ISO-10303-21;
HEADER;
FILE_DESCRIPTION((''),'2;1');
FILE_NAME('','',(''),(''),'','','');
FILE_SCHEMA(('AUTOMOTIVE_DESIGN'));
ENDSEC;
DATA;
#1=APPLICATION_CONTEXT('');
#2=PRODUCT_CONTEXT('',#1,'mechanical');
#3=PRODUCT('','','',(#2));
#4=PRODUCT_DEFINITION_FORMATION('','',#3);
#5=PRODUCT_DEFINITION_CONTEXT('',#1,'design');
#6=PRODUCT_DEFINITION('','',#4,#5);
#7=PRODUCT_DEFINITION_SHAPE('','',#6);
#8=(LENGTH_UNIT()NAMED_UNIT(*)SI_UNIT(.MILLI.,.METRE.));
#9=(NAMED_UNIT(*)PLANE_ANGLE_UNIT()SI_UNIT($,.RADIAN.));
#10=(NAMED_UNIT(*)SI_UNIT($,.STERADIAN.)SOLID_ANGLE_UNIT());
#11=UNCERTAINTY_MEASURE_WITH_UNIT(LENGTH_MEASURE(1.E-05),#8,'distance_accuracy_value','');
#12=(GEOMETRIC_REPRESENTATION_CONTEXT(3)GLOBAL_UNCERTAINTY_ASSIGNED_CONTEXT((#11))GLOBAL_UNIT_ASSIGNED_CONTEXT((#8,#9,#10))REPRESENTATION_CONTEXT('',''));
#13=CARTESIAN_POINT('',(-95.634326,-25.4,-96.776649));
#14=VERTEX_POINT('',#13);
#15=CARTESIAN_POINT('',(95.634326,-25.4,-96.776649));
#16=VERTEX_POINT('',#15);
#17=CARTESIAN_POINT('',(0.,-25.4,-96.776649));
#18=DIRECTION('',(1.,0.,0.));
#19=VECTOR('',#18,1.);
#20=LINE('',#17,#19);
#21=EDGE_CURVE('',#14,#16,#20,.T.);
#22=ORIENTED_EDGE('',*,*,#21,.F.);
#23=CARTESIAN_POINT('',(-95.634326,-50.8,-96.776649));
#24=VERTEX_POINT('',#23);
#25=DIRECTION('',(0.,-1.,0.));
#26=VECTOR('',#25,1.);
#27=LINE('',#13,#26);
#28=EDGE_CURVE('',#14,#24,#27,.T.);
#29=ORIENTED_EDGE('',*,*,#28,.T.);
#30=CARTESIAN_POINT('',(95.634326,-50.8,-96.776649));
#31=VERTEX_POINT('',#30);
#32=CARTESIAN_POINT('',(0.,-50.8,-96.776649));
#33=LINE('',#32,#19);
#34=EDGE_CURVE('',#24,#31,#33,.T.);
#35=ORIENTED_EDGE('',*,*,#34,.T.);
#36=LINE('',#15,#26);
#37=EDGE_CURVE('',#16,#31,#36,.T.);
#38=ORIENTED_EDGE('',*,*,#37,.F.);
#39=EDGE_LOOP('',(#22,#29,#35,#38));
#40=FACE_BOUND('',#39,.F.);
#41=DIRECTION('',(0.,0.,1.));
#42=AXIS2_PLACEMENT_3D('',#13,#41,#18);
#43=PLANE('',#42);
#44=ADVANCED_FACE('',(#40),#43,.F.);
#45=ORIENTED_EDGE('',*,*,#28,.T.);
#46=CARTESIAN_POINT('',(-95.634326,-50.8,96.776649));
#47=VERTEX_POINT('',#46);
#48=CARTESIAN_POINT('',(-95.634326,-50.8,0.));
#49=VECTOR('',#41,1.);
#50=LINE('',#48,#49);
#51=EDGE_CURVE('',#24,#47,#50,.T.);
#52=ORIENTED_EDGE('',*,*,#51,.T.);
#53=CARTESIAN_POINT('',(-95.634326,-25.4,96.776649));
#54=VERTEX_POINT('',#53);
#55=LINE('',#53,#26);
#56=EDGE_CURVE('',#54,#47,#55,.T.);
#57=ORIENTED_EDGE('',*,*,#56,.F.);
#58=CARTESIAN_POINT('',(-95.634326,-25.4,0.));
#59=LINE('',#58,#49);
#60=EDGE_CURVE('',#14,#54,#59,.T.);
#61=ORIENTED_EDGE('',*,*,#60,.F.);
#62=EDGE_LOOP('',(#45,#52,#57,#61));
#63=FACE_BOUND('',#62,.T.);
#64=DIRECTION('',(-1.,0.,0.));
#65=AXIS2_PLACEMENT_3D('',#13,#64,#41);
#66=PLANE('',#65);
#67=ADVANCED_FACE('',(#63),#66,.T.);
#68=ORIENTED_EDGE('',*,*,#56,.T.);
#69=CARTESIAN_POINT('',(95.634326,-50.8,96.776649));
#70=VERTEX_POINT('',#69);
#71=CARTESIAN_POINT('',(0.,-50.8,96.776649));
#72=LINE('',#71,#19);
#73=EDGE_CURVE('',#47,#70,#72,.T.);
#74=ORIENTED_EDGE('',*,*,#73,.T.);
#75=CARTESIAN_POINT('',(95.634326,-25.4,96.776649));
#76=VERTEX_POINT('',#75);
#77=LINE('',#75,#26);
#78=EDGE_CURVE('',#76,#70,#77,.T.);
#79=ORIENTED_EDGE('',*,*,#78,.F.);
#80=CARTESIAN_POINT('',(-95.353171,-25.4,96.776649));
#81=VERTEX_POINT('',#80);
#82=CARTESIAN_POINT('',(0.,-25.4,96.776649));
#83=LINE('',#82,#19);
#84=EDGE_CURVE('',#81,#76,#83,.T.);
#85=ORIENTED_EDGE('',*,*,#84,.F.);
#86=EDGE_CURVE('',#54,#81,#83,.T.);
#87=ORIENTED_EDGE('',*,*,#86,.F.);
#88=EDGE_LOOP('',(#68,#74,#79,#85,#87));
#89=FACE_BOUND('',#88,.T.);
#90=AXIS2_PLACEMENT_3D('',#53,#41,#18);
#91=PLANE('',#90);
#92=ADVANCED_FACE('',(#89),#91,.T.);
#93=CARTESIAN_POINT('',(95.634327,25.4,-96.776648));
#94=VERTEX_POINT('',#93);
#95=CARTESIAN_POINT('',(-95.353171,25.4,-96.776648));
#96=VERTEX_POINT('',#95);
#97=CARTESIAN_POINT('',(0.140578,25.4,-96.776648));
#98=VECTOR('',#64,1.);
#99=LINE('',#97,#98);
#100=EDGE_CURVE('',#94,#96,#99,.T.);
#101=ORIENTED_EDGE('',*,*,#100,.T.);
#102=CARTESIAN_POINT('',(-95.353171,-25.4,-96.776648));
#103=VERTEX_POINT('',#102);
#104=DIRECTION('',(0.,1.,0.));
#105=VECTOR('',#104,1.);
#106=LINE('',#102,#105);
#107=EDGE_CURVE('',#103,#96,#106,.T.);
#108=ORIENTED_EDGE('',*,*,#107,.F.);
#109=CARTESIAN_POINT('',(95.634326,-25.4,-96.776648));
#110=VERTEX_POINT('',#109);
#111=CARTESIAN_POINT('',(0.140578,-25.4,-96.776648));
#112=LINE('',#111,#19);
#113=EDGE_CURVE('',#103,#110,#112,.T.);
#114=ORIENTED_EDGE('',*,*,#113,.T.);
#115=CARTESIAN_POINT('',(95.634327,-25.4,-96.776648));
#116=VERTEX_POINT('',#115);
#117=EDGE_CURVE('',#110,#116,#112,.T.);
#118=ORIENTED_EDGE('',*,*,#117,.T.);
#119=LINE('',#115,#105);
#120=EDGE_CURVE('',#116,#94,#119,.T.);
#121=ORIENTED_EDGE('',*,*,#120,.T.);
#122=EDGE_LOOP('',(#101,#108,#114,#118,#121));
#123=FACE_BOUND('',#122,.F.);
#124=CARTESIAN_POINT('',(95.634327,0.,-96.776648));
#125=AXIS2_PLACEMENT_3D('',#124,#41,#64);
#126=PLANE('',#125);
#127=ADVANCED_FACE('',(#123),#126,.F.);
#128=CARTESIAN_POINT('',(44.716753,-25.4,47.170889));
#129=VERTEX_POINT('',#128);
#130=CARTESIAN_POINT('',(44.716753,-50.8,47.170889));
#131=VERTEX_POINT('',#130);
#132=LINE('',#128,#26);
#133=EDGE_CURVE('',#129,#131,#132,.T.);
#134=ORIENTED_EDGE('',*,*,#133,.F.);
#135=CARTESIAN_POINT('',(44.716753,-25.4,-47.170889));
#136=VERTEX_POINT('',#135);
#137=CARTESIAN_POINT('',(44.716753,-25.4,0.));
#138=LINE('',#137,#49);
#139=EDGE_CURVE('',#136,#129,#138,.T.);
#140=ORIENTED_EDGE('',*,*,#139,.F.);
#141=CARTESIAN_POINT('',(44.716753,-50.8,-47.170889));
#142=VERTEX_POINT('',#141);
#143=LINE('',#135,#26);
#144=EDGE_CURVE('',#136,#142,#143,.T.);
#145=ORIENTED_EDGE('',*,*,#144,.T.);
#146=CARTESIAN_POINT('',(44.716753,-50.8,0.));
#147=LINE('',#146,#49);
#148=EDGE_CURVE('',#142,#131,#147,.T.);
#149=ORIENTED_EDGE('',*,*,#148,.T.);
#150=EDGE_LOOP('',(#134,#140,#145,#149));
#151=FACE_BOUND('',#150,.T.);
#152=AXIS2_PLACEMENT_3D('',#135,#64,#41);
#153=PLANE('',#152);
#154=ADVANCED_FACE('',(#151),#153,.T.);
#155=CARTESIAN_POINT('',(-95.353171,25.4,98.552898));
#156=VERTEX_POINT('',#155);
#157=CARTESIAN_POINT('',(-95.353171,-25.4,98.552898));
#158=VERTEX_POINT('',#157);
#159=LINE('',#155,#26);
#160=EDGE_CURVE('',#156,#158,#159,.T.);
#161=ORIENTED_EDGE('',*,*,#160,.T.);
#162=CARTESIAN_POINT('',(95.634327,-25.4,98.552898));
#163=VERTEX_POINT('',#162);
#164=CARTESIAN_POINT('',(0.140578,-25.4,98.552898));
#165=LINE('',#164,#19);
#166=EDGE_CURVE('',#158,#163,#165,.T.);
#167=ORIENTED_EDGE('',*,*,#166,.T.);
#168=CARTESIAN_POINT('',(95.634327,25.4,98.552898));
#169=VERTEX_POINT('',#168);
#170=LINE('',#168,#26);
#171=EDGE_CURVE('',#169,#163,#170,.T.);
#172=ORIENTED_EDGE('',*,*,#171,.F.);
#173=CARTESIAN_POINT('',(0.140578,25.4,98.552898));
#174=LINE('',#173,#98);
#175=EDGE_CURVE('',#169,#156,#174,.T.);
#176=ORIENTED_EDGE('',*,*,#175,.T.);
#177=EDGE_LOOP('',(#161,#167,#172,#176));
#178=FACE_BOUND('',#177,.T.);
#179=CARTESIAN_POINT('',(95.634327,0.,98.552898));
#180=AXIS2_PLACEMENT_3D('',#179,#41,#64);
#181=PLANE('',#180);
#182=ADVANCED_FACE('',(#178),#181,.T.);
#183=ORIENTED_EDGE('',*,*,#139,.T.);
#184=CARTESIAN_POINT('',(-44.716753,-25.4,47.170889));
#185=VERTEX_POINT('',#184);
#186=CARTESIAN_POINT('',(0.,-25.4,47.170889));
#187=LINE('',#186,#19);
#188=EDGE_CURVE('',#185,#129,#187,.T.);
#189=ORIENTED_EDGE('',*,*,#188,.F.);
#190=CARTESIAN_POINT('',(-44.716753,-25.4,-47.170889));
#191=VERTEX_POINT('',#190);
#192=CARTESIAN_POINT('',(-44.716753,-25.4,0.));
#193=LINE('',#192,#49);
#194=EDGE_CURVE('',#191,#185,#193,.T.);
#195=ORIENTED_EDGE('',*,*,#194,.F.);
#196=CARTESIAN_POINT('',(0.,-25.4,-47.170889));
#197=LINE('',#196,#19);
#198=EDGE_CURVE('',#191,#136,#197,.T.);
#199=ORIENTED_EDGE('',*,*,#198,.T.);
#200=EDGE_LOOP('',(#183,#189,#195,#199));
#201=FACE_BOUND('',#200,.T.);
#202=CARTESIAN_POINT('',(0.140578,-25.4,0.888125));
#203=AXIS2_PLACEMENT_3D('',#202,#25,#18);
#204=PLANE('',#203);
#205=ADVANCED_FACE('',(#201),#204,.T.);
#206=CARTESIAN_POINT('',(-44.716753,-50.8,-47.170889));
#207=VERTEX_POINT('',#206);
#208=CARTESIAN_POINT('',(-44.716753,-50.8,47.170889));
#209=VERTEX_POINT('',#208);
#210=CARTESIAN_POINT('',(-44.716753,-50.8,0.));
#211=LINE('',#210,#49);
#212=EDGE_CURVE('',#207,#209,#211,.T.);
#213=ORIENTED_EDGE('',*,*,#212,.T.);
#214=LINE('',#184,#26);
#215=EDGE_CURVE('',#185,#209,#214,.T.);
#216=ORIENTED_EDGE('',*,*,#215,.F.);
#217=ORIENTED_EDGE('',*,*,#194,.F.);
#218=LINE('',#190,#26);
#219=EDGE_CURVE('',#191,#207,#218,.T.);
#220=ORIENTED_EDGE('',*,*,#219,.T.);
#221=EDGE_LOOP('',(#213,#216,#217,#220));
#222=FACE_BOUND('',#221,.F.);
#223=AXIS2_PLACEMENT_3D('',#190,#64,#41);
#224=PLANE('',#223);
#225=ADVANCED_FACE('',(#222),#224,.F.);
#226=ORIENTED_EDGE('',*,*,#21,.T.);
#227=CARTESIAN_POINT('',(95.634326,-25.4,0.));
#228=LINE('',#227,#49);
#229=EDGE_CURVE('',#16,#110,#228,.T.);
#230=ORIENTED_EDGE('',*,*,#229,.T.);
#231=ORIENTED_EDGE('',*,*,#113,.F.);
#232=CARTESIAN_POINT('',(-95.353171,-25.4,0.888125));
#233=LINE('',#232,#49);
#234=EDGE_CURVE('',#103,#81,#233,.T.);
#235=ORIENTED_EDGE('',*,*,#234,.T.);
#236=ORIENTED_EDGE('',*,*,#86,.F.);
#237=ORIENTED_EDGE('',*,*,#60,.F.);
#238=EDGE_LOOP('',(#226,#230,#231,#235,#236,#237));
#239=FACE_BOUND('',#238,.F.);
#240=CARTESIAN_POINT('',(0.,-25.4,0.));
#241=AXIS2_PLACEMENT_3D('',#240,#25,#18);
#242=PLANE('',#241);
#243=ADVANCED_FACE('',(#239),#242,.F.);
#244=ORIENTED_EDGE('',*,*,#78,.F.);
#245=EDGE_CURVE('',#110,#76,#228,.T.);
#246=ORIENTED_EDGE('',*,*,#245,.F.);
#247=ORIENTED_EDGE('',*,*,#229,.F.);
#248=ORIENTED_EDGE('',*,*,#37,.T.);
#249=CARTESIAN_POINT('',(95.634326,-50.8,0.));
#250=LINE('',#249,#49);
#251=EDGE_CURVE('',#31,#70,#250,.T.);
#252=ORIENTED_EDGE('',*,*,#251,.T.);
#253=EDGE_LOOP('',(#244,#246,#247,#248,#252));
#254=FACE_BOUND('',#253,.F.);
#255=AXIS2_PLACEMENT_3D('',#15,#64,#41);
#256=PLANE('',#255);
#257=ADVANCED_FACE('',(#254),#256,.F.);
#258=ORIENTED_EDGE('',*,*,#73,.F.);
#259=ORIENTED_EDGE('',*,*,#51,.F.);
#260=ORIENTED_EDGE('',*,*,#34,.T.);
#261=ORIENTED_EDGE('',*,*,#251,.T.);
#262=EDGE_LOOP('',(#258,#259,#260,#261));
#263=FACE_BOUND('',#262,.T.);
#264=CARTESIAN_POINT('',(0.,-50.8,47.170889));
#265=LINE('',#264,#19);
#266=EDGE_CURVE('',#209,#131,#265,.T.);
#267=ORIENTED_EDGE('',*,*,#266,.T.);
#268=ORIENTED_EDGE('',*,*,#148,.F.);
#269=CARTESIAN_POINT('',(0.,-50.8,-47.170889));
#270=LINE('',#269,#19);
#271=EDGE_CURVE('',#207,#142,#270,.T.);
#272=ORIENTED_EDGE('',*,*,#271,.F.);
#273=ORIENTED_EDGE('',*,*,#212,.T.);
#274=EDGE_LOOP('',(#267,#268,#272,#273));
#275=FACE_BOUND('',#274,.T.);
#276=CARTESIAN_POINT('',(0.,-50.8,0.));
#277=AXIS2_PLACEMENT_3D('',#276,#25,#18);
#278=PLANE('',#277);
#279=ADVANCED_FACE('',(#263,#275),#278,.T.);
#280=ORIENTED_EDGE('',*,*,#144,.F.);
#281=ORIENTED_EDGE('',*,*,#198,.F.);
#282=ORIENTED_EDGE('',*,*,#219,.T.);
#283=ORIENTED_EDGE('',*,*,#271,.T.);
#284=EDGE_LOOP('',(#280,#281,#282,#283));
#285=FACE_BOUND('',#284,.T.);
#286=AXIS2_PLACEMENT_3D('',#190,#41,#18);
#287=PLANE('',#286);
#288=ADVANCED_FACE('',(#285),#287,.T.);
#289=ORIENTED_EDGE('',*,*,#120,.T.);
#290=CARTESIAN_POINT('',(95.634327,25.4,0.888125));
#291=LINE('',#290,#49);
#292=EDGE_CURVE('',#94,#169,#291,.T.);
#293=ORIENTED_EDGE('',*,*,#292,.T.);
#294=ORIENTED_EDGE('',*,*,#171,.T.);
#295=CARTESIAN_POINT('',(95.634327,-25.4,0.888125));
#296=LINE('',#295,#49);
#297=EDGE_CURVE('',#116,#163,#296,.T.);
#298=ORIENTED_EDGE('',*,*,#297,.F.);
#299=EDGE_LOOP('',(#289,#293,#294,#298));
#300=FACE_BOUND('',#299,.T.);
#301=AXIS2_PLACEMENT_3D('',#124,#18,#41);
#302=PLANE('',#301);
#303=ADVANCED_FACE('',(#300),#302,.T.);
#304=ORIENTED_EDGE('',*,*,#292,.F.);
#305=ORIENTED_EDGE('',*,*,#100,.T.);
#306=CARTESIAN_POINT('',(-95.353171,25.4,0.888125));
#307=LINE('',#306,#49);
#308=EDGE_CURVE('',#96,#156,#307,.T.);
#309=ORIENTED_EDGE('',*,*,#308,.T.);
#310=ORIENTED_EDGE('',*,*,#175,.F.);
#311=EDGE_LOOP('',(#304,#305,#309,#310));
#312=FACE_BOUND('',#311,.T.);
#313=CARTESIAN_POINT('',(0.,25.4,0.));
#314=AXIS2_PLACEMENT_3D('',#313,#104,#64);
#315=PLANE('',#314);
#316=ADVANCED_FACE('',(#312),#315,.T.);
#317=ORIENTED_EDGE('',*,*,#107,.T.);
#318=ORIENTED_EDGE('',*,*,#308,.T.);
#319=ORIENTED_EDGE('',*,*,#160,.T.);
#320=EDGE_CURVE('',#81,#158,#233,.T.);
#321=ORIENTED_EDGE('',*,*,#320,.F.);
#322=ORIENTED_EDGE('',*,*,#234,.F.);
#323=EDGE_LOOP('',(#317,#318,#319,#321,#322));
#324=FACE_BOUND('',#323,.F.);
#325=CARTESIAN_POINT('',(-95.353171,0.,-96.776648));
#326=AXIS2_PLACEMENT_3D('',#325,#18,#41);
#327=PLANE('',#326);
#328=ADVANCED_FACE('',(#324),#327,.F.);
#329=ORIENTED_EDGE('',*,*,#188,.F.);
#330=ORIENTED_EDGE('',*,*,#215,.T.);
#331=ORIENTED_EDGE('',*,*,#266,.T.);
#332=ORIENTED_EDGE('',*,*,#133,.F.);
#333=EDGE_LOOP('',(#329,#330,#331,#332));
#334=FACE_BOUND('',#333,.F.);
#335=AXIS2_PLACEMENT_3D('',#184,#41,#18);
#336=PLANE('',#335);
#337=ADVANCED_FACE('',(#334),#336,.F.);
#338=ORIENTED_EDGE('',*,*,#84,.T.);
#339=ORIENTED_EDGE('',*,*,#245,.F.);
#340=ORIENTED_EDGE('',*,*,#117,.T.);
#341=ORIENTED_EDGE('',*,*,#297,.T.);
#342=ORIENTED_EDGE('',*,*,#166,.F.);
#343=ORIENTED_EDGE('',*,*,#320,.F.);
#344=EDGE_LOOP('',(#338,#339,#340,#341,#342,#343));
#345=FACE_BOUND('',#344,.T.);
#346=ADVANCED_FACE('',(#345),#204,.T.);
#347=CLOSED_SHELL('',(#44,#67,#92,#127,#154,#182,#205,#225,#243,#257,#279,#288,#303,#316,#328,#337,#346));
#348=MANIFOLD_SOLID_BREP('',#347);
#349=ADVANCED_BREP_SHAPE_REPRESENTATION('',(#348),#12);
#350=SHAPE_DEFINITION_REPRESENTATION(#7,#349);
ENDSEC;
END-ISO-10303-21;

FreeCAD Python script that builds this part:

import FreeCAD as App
import Part
import Sketcher

V = App.Vector


def add_polygon(sketch, points):
    """Adds a closed chain of lines whose ends are joined by coincident constraints."""
    first, n = sketch.GeometryCount, len(points)
    for a, b in zip(points, points[1:] + points[:1]):
        sketch.addGeometry(Part.LineSegment(App.Vector(*a, 0), App.Vector(*b, 0)), False)
    for i in range(n):
        sketch.addConstraint(Sketcher.Constraint("Coincident", first + i, 2, first + (i + 1) % n, 1))

doc = App.newDocument("Part")
params = doc.addObject("Spreadsheet::Sheet", "Params")
for row, (alias, value) in enumerate([
    ("pad1_length", "1 in"),
    ("pad2_length", "1 in"),
    ("pad3_length", "1 in"),
    ("pad4_length", "1 in"),
], start=1):
    params.set(f"A{row}", alias)
    params.set(f"B{row}", "=" + value)
    params.setAlias(f"B{row}", alias)

body = doc.addObject("PartDesign::Body", "Body")

sketch1 = body.newObject("Sketcher::SketchObject", "Sketch")
sketch1.AttachmentSupport = (doc.getObject("XZ_Plane"), [""])
sketch1.MapMode = "FlatFace"
add_polygon(sketch1, [(-95, 99), (-95, -97), (96, -97), (96, 99)])
sketch1.addConstraint([
    Sketcher.Constraint("Vertical", 0),
    Sketcher.Constraint("Horizontal", 1),
    Sketcher.Constraint("Vertical", 2),
    Sketcher.Constraint("Horizontal", 3),
    Sketcher.Constraint("DistanceY", -1, 1, 2, 2, 98.552898),
    Sketcher.Constraint("DistanceX", 1, 1, 1, 2, 190.987497),
    Sketcher.Constraint("DistanceY", 0, 2, 0, 1, 195.329547),
    Sketcher.Constraint("DistanceX", 0, 2, -1, 1, 95.353171),
])
pad1 = body.newObject("PartDesign::Pad", "Pad")
pad1.Profile = sketch1
pad1.setExpression("Length", "Params.pad1_length")

sketch2 = body.newObject("Sketcher::SketchObject", "Sketch001")
sketch2.AttachmentSupport = (doc.getObject("XZ_Plane"), [""])
sketch2.MapMode = "FlatFace"
add_polygon(sketch2, [(96, 99), (96, -97), (-95, -97), (-95, 99)])
add_polygon(sketch2, [(-46, -45), (46, -45), (46, 45), (-46, 45)])
sketch2.addConstraint([
    Sketcher.Constraint("Vertical", 0),
    Sketcher.Constraint("Horizontal", 1),
    Sketcher.Constraint("Vertical", 2),
    Sketcher.Constraint("Horizontal", 3),
    Sketcher.Constraint("Horizontal", 4),
    Sketcher.Constraint("Vertical", 5),
    Sketcher.Constraint("Horizontal", 6),
    Sketcher.Constraint("Vertical", 7),
    Sketcher.Constraint("Symmetric", 4, 2, 6, 2, -1, 1),
    Sketcher.Constraint("DistanceY", 5, 1, 5, 2, 90.176002),
    Sketcher.Constraint("DistanceY", -1, 1, 2, 2, 98.552898),
    Sketcher.Constraint("DistanceX", -1, 1, 4, 2, 46.040699),
    Sketcher.Constraint("DistanceX", 1, 2, 1, 1, 190.987497),
    Sketcher.Constraint("DistanceY", 0, 2, 0, 1, 195.329547),
    Sketcher.Constraint("DistanceX", 1, 2, -1, 1, 95.353171),
])
pad2 = body.newObject("PartDesign::Pad", "Pad001")
pad2.Profile = sketch2
pad2.setExpression("Length", "Params.pad2_length")
pad2.Reversed = True

sketch3 = body.newObject("Sketcher::SketchObject", "Sketch002")
sketch3.AttachmentSupport = (doc.getObject("XZ_Plane"), [""])
sketch3.MapMode = "FlatFace"
sketch3.AttachmentOffset = App.Placement(V(0, 0, 1 * 25.4), App.Rotation())
add_polygon(sketch3, [(-96, 97), (-96, -97), (96, -97), (96, 97)])
add_polygon(sketch3, [(45, -47), (-45, -47), (-45, 47), (45, 47)])
sketch3.addConstraint([
    Sketcher.Constraint("Vertical", 0),
    Sketcher.Constraint("Horizontal", 1),
    Sketcher.Constraint("Vertical", 2),
    Sketcher.Constraint("Horizontal", 3),
    Sketcher.Constraint("Horizontal", 4),
    Sketcher.Constraint("Vertical", 5),
    Sketcher.Constraint("Horizontal", 6),
    Sketcher.Constraint("Vertical", 7),
    Sketcher.Constraint("Symmetric", 0, 2, 2, 2, -1, 1),
    Sketcher.Constraint("Symmetric", 4, 2, 6, 2, -1, 1),
    Sketcher.Constraint("DistanceY", 0, 2, 0, 1, 193.553298),
    Sketcher.Constraint("DistanceX", 1, 1, 1, 2, 191.268652),
    Sketcher.Constraint("DistanceY", 5, 1, 5, 2, 94.341778),
    Sketcher.Constraint("DistanceX", 4, 2, 4, 1, 89.433506),
])
pad3 = body.newObject("PartDesign::Pad", "Pad002")
pad3.Profile = sketch3
pad3.setExpression("Length", "Params.pad3_length")

sketch4 = body.newObject("Sketcher::SketchObject", "Sketch003")
sketch4.AttachmentSupport = (doc.getObject("XZ_Plane"), [""])
sketch4.MapMode = "FlatFace"
add_polygon(sketch4, [(46, 45), (46, -45), (-46, -45), (-46, 45)])
sketch4.addConstraint([
    Sketcher.Constraint("Vertical", 0),
    Sketcher.Constraint("Horizontal", 1),
    Sketcher.Constraint("Vertical", 2),
    Sketcher.Constraint("Horizontal", 3),
    Sketcher.Constraint("Symmetric", 0, 2, 2, 2, -1, 1),
    Sketcher.Constraint("DistanceY", 0, 2, 0, 1, 90.176002),
    Sketcher.Constraint("DistanceX", -1, 1, 0, 2, 46.040699),
])
pad4 = body.newObject("PartDesign::Pad", "Pad003")
pad4.Profile = sketch4
pad4.setExpression("Length", "Params.pad4_length")
pad4.Reversed = True

doc.recompute()
